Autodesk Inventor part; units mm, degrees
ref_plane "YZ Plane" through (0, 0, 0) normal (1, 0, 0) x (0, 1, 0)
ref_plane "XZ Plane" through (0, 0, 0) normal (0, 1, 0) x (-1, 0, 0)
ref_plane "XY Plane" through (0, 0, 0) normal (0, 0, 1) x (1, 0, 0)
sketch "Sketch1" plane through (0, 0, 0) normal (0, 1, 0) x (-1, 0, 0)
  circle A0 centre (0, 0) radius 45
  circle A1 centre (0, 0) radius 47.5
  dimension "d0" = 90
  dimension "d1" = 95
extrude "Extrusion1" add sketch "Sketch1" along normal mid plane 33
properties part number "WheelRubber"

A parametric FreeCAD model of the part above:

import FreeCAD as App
import Part
import Sketcher
from FreeCAD import Vector

doc = App.newDocument("Part")
body = doc.addObject("PartDesign::Body", "Body")

# Sketch on XZ plane
sketch1 = body.newObject("Sketcher::SketchObject", "Sketch")
sketch1.AttachmentSupport = (doc.getObject("XZ_Plane"), [""])
sketch1.MapMode = "FlatFace"
sketch1.addGeometry([
    Part.Circle(Vector(0, 0, 0), Vector(0, 0, 1), 47.5),
    Part.Circle(Vector(0, 0, 0), Vector(0, 0, 1), 45),
], False)
sketch1.addConstraint([
    Sketcher.Constraint("Coincident", 0, 3, -1, 1),
    Sketcher.Constraint("Coincident", 1, 3, -1, 1),
    Sketcher.Constraint("Diameter", 0, 95.0),
    Sketcher.Constraint("Diameter", 1, 90.0),
])
pad1 = body.newObject("PartDesign::Pad", "Pad")
pad1.Profile = sketch1
pad1.Length = 33
pad1.Midplane = True

doc.recompute()
